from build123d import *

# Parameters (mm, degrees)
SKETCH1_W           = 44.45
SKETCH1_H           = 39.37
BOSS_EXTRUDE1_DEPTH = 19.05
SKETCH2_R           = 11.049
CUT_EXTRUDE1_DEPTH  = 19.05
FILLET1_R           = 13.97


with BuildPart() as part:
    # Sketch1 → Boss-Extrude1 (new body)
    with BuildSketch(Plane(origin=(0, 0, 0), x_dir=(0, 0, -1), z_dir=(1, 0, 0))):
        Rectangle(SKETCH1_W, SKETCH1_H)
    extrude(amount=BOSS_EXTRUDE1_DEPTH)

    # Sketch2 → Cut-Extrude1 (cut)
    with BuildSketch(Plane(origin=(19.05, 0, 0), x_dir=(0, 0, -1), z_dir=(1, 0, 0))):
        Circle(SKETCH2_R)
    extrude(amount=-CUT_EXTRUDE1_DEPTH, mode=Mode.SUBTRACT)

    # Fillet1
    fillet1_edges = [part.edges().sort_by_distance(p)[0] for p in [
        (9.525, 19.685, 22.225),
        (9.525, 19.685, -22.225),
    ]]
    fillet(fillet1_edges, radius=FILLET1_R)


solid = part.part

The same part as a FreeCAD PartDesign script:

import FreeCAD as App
import Part
import Sketcher
from FreeCAD import Vector
Q = App.Units.Quantity


def edges_at(feature, points):
    """Names of the edges that pass closest to the given points."""
    edges = feature.Shape.Edges
    near = lambda p: min(range(len(edges)), key=lambda i: edges[i].distToShape(Part.Vertex(*p))[0])
    return sorted({f"Edge{near(p) + 1}" for p in points})


def add_polygon(sketch, points):
    """Adds a closed chain of lines whose ends are joined by coincident constraints."""
    first, n = sketch.GeometryCount, len(points)
    for a, b in zip(points, points[1:] + points[:1]):
        sketch.addGeometry(Part.LineSegment(App.Vector(*a, 0), App.Vector(*b, 0)), False)
    for i in range(n):
        sketch.addConstraint(Sketcher.Constraint("Coincident", first + i, 2, first + (i + 1) % n, 1))

doc = App.newDocument("Part")
body = doc.addObject("PartDesign::Body", "Body")

sketch1 = body.newObject("Sketcher::SketchObject", "Sketch")
sketch1.AttachmentSupport = (doc.getObject("YZ_Plane"), [""])
sketch1.MapMode = "FlatFace"
add_polygon(sketch1, [(20, 22), (-20, 22), (-20, -22), (20, -22)])
sketch1.addConstraint([
    Sketcher.Constraint("Horizontal", 0),
    Sketcher.Constraint("Vertical", 1),
    Sketcher.Constraint("Horizontal", 2),
    Sketcher.Constraint("Vertical", 3),
    Sketcher.Constraint("Symmetric", 0, 2, 2, 2, -1, 1),
    Sketcher.Constraint("DistanceX", 0, 2, 0, 1, Q("1.55 in")),
    Sketcher.Constraint("DistanceY", 1, 2, 1, 1, Q("1.75 in")),
])
pad1 = body.newObject("PartDesign::Pad", "Pad")
pad1.Profile = sketch1
pad1.Length = Q("0.75 in")

sketch2 = body.newObject("Sketcher::SketchObject", "Sketch001")
sketch2.AttachmentSupport = (doc.getObject("YZ_Plane"), [""])
sketch2.MapMode = "FlatFace"
sketch2.AttachmentOffset = App.Placement(Vector(0, 0, 0.75 * 25.4), App.Rotation())
sketch2.addGeometry(Part.Circle(Vector(0, 0, 0), Vector(0, 0, 1), 11), False)
sketch2.addConstraint([
    Sketcher.Constraint("Coincident", 0, 3, -1, 1),
    Sketcher.Constraint("Diameter", 0, Q("0.87 in")),
])
pocket1 = body.newObject("PartDesign::Pocket", "Pocket")
pocket1.Profile = sketch2
pocket1.Length = Q("0.75 in")
doc.recompute()

fillet = body.newObject("PartDesign::Fillet", "Fillet")
fillet.Base = (pocket1, edges_at(pocket1, [(9.525, 19.685, 22.225), (9.525, 19.685, -22.225)]))
fillet.Radius = Q("0.55 in")

doc.recompute()
